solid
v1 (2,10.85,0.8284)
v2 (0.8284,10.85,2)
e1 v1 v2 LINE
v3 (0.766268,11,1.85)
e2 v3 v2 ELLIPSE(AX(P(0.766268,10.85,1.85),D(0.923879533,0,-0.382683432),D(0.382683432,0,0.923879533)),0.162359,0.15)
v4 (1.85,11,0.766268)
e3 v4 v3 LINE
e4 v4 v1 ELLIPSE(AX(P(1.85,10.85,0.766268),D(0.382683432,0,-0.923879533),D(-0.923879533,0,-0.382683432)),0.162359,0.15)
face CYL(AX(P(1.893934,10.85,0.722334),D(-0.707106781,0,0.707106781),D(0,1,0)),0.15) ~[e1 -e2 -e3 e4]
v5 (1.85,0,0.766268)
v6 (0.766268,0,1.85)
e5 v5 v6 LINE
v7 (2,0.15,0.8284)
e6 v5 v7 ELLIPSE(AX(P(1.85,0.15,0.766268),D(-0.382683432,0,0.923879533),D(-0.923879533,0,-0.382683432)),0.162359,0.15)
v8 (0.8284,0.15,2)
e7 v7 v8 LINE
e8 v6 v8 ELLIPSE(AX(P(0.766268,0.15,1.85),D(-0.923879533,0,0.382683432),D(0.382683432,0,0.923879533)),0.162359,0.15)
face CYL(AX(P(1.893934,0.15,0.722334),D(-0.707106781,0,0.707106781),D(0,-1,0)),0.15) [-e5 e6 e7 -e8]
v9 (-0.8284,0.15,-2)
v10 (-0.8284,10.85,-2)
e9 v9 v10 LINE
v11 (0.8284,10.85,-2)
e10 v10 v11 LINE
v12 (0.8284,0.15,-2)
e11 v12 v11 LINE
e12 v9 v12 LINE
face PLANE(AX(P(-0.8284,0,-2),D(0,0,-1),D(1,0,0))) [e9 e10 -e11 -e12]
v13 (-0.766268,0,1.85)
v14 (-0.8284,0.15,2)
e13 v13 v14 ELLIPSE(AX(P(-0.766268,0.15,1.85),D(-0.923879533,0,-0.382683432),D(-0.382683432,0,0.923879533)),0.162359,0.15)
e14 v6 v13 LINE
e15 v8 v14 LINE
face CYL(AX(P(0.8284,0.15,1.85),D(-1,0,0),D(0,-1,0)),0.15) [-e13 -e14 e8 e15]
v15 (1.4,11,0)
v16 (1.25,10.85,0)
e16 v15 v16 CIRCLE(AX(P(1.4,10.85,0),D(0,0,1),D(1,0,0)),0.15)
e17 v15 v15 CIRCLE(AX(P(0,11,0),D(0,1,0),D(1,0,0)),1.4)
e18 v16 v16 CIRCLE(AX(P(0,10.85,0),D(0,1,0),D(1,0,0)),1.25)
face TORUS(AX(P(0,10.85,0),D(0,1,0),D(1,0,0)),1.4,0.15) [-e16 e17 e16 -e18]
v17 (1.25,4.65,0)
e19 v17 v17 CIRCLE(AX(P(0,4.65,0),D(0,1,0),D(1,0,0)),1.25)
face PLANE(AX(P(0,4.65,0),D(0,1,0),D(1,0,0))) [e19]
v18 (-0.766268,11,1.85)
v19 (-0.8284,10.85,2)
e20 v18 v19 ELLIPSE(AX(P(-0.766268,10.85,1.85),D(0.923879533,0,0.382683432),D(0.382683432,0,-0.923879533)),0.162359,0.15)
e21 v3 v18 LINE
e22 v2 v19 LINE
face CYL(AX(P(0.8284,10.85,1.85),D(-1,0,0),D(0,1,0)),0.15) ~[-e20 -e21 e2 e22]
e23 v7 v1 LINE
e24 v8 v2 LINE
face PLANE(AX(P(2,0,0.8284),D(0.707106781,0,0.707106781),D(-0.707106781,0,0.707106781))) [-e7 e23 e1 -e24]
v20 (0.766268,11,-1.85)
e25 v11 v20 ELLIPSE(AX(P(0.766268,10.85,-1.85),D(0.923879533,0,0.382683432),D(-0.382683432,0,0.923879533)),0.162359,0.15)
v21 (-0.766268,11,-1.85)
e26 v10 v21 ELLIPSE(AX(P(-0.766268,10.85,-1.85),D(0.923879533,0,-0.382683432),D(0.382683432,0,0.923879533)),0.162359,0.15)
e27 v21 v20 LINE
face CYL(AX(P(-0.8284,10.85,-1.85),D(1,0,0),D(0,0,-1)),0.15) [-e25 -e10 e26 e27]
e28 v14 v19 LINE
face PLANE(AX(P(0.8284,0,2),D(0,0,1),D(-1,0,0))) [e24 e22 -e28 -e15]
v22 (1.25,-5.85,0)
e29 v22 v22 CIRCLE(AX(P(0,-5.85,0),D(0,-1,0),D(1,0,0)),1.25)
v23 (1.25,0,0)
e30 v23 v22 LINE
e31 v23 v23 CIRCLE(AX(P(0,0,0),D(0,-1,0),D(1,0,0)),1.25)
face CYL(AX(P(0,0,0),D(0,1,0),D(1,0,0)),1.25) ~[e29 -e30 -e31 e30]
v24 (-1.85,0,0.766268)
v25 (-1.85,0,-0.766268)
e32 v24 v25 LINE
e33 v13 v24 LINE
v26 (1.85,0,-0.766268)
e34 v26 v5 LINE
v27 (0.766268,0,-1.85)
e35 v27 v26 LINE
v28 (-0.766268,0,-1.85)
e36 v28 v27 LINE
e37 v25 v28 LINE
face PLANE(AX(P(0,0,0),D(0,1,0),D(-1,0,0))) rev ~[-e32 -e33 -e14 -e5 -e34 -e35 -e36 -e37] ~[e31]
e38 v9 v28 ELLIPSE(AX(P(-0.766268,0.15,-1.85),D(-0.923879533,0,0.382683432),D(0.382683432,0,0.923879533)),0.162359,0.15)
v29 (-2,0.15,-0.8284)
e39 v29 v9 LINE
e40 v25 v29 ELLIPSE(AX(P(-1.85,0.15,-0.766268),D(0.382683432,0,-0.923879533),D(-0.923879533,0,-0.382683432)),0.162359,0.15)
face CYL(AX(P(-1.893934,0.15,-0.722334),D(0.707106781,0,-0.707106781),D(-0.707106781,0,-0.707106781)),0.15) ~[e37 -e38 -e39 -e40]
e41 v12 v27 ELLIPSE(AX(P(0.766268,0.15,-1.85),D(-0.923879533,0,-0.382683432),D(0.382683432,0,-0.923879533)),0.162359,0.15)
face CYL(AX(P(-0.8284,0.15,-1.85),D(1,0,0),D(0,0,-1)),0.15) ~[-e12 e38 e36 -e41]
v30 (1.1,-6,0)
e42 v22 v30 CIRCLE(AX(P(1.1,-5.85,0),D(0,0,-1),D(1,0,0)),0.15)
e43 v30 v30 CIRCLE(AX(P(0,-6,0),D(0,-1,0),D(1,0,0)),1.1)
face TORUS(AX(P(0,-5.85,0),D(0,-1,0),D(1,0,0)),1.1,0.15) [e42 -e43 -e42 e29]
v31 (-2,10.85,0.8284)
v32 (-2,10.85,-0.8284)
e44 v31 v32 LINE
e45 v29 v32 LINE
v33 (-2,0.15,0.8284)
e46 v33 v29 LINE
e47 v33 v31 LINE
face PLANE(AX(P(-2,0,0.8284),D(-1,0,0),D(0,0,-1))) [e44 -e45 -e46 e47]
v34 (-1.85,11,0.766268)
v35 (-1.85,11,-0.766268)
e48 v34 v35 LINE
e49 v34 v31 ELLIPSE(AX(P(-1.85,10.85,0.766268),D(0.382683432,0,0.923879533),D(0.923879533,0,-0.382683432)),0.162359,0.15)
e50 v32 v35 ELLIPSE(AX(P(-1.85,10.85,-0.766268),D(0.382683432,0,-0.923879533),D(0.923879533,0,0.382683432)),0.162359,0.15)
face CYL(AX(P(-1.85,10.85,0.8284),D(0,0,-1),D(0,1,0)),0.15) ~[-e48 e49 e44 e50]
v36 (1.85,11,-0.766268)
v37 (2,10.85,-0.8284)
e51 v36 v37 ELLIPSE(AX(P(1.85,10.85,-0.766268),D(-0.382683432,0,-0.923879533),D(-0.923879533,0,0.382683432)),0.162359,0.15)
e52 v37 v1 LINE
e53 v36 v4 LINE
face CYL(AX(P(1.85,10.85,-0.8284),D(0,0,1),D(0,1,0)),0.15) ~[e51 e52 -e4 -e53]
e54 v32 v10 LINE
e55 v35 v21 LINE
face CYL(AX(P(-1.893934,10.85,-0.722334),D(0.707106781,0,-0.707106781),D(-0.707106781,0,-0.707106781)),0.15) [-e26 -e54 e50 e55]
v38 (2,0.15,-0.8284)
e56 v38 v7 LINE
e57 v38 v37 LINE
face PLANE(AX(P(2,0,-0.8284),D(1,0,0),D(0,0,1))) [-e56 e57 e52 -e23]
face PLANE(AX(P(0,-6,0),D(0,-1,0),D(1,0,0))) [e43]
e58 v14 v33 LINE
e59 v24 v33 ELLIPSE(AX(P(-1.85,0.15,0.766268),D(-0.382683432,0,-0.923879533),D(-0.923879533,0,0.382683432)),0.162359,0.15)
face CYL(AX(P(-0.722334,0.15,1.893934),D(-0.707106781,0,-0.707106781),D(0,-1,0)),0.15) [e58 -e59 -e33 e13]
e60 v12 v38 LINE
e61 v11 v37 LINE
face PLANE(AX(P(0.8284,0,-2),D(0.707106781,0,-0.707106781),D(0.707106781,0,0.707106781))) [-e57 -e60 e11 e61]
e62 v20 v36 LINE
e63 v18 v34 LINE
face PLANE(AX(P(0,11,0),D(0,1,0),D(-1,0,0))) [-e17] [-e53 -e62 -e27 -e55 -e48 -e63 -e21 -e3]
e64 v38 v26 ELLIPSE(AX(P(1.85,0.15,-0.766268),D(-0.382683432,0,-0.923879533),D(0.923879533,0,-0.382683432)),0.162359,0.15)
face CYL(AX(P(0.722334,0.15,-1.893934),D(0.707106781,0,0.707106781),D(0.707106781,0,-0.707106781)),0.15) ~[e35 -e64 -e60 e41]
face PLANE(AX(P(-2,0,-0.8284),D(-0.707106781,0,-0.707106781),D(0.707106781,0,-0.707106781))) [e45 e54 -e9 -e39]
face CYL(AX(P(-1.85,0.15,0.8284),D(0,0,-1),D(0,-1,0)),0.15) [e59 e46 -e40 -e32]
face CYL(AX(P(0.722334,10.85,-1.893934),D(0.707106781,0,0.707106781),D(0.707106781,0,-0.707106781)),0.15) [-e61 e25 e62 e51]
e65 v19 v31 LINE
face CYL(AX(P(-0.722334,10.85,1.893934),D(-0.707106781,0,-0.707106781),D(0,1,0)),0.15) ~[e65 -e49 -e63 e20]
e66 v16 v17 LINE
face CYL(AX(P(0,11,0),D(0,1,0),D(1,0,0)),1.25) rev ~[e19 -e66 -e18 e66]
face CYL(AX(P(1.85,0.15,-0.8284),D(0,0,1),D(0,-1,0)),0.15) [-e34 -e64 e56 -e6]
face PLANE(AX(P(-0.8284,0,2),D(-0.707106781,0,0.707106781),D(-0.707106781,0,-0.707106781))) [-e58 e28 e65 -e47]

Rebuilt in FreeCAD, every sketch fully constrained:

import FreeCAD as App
import Part
import Sketcher
from FreeCAD import Vector


def edges_at(feature, points):
    """Names of the edges that pass closest to the given points."""
    edges = feature.Shape.Edges
    near = lambda p: min(range(len(edges)), key=lambda i: edges[i].distToShape(Part.Vertex(*p))[0])
    return sorted({f"Edge{near(p) + 1}" for p in points})


def add_polygon(sketch, points):
    """Adds a closed chain of lines whose ends are joined by coincident constraints."""
    first, n = sketch.GeometryCount, len(points)
    for a, b in zip(points, points[1:] + points[:1]):
        sketch.addGeometry(Part.LineSegment(App.Vector(*a, 0), App.Vector(*b, 0)), False)
    for i in range(n):
        sketch.addConstraint(Sketcher.Constraint("Coincident", first + i, 2, first + (i + 1) % n, 1))

doc = App.newDocument("Part")
body = doc.addObject("PartDesign::Body", "Body")

# Sketch on XZ plane
sketch1 = doc.addObject("Sketcher::SketchObject", "Sketch")
body.addObject(sketch1)
sketch1.AttachmentSupport = (doc.XZ_Plane, [""])
sketch1.MapMode = "FlatFace"
add_polygon(sketch1, [(0.8, -2), (-0.8, -2), (-2, -0.8), (-2, 0.8), (-0.8, 2), (0.8, 2), (2, 0.8), (2, -0.8)])  # lines 0-7
sketch1.addConstraint(Sketcher.Constraint("Horizontal", 0))
sketch1.addConstraint(Sketcher.Constraint("Vertical", 2))
sketch1.addConstraint(Sketcher.Constraint("Horizontal", 4))
sketch1.addConstraint(Sketcher.Constraint("Vertical", 6))
sketch1.addConstraint(Sketcher.Constraint("Symmetric", 0, 2, 4, 2, -1, 1))
sketch1.addConstraint(Sketcher.Constraint("Symmetric", 1, 2, 5, 2, -1, 1))
sketch1.addConstraint(Sketcher.Constraint("Perpendicular", 1, 3))
sketch1.addConstraint(Sketcher.Constraint("Perpendicular", 5, 7))
sketch1.addConstraint(Sketcher.Constraint("Horizontal", 2, 2, 5, 2))
sketch1.addConstraint(Sketcher.Constraint("Horizontal", 1, 2, 6, 2))
sketch1.addConstraint(Sketcher.Constraint("Vertical", 0, 2, 3, 2))
sketch1.addConstraint(Sketcher.Constraint("Equal", 4, 2))
sketch1.addConstraint(Sketcher.Constraint("DistanceY", 0, 2, 3, 2, 4.0))
sketch1.addConstraint(Sketcher.Constraint("Distance", 1, 1.657))
pad1 = doc.addObject("PartDesign::Pad", "Pad")
body.addObject(pad1)
pad1.Profile = sketch1
pad1.Length = 11
pad1.Reversed = True

# Sketch on XZ plane
sketch2 = doc.addObject("Sketcher::SketchObject", "Sketch001")
body.addObject(sketch2)
sketch2.AttachmentSupport = (doc.XZ_Plane, [""])
sketch2.MapMode = "FlatFace"
sketch2.AttachmentOffset = App.Placement(Vector(0, 0, -11), App.Rotation())
sketch2.addGeometry(Part.Circle(Vector(0, 0, 0), Vector(0, 0, 1), 1.2), False)
sketch2.addConstraint(Sketcher.Constraint("Coincident", 0, 3, -1, 1))
sketch2.addConstraint(Sketcher.Constraint("Diameter", 0, 2.5))
pocket1 = doc.addObject("PartDesign::Pocket", "Pocket")
body.addObject(pocket1)
pocket1.Profile = sketch2
pocket1.Length = 6.35
pocket1.Reversed = True

# Sketch on XZ plane
sketch3 = doc.addObject("Sketcher::SketchObject", "Sketch002")
body.addObject(sketch3)
sketch3.AttachmentSupport = (doc.XZ_Plane, [""])
sketch3.MapMode = "FlatFace"
sketch3.addGeometry(Part.Circle(Vector(0, 0, 0), Vector(0, 0, 1), 1.2), False)
sketch3.addConstraint(Sketcher.Constraint("Coincident", 0, 3, -1, 1))
sketch3.addConstraint(Sketcher.Constraint("Diameter", 0, 2.5))
pad2 = doc.addObject("PartDesign::Pad", "Pad001")
body.addObject(pad2)
pad2.Profile = sketch3
pad2.Length = 6
doc.recompute()

fillet = doc.addObject("PartDesign::Fillet", "Fillet")
body.addObject(fillet)
fillet.Base = (pad2, edges_at(pad2, [
    (1.414, 11, 1.414),
    (2, 11, 0),
    (1.414, 11, -1.414),
    (0, 11, -2),
    (-1.414, 11, -1.414),
    (-2, 11, 0),
    (-1.414, 11, 1.414),
    (0, 11, 2),
    (1.414, 0, 1.414),
    (0, 0, 2),
    (-1.414, 0, 1.414),
    (-2, 0, 0),
    (0, 0, -2),
    (1.414, 0, -1.414),
    (2, 0, 0),
    (-1.414, 0, -1.414),
]))
fillet.Radius = 0.15
doc.recompute()

fillet2 = doc.addObject("PartDesign::Fillet", "Fillet001")
body.addObject(fillet2)
fillet2.Base = (fillet, edges_at(fillet, [(-1.25, -6, 0)]))
fillet2.Radius = 0.15
doc.recompute()

fillet3 = doc.addObject("PartDesign::Fillet", "Fillet002")
body.addObject(fillet3)
fillet3.Base = (fillet2, edges_at(fillet2, [(-1.25, 11, 0)]))
fillet3.Radius = 0.15

doc.recompute()
